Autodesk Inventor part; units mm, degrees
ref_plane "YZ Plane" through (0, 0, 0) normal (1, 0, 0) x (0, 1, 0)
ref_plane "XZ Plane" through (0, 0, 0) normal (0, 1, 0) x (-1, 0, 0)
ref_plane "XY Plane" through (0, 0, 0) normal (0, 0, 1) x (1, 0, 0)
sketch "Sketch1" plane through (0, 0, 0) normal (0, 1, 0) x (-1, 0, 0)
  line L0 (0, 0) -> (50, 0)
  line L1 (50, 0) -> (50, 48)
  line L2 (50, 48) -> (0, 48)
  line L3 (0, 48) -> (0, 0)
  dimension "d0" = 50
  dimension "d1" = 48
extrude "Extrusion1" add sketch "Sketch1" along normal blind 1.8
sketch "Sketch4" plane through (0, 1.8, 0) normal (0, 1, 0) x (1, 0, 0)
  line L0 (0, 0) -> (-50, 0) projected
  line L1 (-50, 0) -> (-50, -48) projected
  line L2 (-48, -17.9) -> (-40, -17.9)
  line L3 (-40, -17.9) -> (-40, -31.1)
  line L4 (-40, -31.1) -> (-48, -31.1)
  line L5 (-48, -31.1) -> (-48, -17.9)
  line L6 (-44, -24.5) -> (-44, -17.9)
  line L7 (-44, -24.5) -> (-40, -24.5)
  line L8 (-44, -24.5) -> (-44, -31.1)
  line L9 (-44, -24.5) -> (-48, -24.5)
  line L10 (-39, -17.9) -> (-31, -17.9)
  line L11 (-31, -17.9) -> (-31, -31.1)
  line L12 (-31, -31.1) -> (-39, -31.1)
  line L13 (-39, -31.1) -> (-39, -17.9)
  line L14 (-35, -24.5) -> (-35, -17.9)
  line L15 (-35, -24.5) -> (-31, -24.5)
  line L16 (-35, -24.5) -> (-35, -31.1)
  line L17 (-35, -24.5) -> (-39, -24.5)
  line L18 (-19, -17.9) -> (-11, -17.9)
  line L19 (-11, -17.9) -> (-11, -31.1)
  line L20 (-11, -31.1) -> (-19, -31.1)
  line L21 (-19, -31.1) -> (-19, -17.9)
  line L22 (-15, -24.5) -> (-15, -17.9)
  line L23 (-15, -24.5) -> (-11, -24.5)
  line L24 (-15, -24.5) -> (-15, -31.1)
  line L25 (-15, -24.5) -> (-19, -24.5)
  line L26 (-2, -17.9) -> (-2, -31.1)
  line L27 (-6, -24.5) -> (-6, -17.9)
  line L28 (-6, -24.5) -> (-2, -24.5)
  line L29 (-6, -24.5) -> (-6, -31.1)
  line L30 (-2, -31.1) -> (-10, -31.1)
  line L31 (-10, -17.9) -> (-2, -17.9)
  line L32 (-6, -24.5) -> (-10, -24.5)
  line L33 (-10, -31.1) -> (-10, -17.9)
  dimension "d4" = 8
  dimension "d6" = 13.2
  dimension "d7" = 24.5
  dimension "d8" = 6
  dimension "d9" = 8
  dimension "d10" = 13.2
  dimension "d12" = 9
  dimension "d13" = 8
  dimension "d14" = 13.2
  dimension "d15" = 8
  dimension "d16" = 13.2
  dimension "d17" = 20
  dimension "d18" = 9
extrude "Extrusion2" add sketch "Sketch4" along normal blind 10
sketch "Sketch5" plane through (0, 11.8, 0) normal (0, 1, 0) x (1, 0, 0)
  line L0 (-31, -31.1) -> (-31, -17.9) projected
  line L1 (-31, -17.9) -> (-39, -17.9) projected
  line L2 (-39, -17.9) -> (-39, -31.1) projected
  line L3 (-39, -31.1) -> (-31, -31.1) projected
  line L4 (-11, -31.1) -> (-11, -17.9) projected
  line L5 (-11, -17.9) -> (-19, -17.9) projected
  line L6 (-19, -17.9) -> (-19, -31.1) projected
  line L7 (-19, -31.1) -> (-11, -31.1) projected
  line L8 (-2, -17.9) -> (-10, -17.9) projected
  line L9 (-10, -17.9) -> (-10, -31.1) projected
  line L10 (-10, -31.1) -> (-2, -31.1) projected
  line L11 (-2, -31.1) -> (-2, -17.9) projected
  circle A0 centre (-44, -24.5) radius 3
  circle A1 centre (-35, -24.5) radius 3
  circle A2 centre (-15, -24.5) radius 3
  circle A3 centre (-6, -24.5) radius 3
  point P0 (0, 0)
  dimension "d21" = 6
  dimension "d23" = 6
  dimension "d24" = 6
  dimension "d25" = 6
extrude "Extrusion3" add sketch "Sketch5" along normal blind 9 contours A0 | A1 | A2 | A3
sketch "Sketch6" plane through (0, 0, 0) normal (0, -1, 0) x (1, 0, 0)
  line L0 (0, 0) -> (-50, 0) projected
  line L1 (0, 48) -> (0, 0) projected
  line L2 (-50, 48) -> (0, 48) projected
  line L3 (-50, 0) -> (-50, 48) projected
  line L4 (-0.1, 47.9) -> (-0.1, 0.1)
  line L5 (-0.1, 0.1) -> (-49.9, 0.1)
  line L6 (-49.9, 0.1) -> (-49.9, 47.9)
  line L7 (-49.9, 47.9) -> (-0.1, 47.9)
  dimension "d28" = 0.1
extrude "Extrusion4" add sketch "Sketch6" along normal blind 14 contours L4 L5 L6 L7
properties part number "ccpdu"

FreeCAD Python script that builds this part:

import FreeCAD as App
import Part
import Sketcher

V = App.Vector
Q = App.Units.Quantity


def add_polygon(sketch, points):
    """Adds a closed chain of lines whose ends are joined by coincident constraints."""
    first, n = sketch.GeometryCount, len(points)
    for a, b in zip(points, points[1:] + points[:1]):
        sketch.addGeometry(Part.LineSegment(App.Vector(*a, 0), App.Vector(*b, 0)), False)
    for i in range(n):
        sketch.addConstraint(Sketcher.Constraint("Coincident", first + i, 2, first + (i + 1) % n, 1))

doc = App.newDocument("Part")
body = doc.addObject("PartDesign::Body", "Body")

sketch1 = body.newObject("Sketcher::SketchObject", "Sketch")
sketch1.AttachmentSupport = (doc.getObject("XZ_Plane"), [""])
sketch1.MapMode = "FlatFace"
add_polygon(sketch1, [(0, 48), (0, 0), (-50, 0), (-50, 48)])
sketch1.addConstraint([
    Sketcher.Constraint("Vertical", 0),
    Sketcher.Constraint("Horizontal", 1),
    Sketcher.Constraint("Vertical", 2),
    Sketcher.Constraint("Horizontal", 3),
    Sketcher.Constraint("Coincident", 0, 2, -1, 1),
    Sketcher.Constraint("DistanceX", 1, 2, 1, 1, Q("50 mm")),
    Sketcher.Constraint("DistanceY", 0, 2, 0, 1, Q("48 mm")),
])
pad1 = body.newObject("PartDesign::Pad", "Pad")
pad1.Profile = sketch1
pad1.Length = 1.8
pad1.Reversed = True

sketch2 = body.newObject("Sketcher::SketchObject", "Sketch001")
sketch2.AttachmentSupport = (doc.getObject("XZ_Plane"), [""])
sketch2.MapMode = "FlatFace"
sketch2.AttachmentOffset = App.Placement(V(0, 0, -1.8), App.Rotation())
add_polygon(sketch2, [(-48, 18), (-48, 31), (-40, 31), (-40, 18)])
add_polygon(sketch2, [(-39, 18), (-39, 31), (-31, 31), (-31, 18)])
add_polygon(sketch2, [(-19, 18), (-19, 31), (-11, 31), (-11, 18)])
add_polygon(sketch2, [(-2, 18), (-10, 18), (-10, 31), (-2, 31)])
sketch2.addConstraint([
    Sketcher.Constraint("Vertical", 0),
    Sketcher.Constraint("Horizontal", 1),
    Sketcher.Constraint("Vertical", 2),
    Sketcher.Constraint("Horizontal", 3),
    Sketcher.Constraint("Vertical", 4),
    Sketcher.Constraint("Horizontal", 5),
    Sketcher.Constraint("Vertical", 6),
    Sketcher.Constraint("Horizontal", 7),
    Sketcher.Constraint("Vertical", 8),
    Sketcher.Constraint("Horizontal", 9),
    Sketcher.Constraint("Vertical", 10),
    Sketcher.Constraint("Horizontal", 11),
    Sketcher.Constraint("Horizontal", 12),
    Sketcher.Constraint("Vertical", 13),
    Sketcher.Constraint("Horizontal", 14),
    Sketcher.Constraint("Vertical", 15),
    Sketcher.Constraint("Horizontal", 1, 2, 4, 2),
    Sketcher.Constraint("Horizontal", 3, 2, 6, 2),
    Sketcher.Constraint("Horizontal", 5, 2, 8, 2),
    Sketcher.Constraint("Horizontal", 7, 2, 10, 2),
    Sketcher.Constraint("Horizontal", 11, 2, 12, 2),
    Sketcher.Constraint("Horizontal", 9, 2, 13, 2),
    Sketcher.Constraint("Equal", 3, 5),
    Sketcher.Constraint("Equal", 7, 9),
    Sketcher.Constraint("Equal", 11, 12),
    Sketcher.Constraint("DistanceX", 1, 1, 1, 2, Q("8 mm")),
    Sketcher.Constraint("DistanceY", 0, 1, 0, 2, Q("13.2 mm")),
    Sketcher.Constraint("DistanceX", 0, 2, 4, 2, Q("9 mm")),
    Sketcher.Constraint("DistanceX", 4, 2, 8, 2, Q("20 mm")),
    Sketcher.Constraint("DistanceX", 11, 2, 12, 2, Q("9 mm")),
    Sketcher.Constraint("DistanceX", 0, 2, -1, 1, Q("48 mm")),
    Sketcher.Constraint("DistanceY", -1, 1, 0, 2, Q("31.1 mm")),
])
pad2 = body.newObject("PartDesign::Pad", "Pad001")
pad2.Profile = sketch2
pad2.Length = 10
pad2.Reversed = True

sketch3 = body.newObject("Sketcher::SketchObject", "Sketch002")
sketch3.AttachmentSupport = (doc.getObject("XZ_Plane"), [""])
sketch3.MapMode = "FlatFace"
sketch3.AttachmentOffset = App.Placement(V(0, 0, -11.8), App.Rotation())
sketch3.addGeometry([
    Part.Circle(V(-44, 24.5, 0), V(0, 0, 1), 3),
    Part.Circle(V(-35, 24.5, 0), V(0, 0, 1), 3),
    Part.Circle(V(-15, 24.5, 0), V(0, 0, 1), 3),
    Part.Circle(V(-6, 24.5, 0), V(0, 0, 1), 3),
], False)
sketch3.addConstraint([
    Sketcher.Constraint("Equal", 0, 1),
    Sketcher.Constraint("Equal", 1, 2),
    Sketcher.Constraint("Equal", 2, 3),
    Sketcher.Constraint("Horizontal", 0, 3, 1, 3),
    Sketcher.Constraint("Horizontal", 1, 3, 2, 3),
    Sketcher.Constraint("Horizontal", 2, 3, 3, 3),
    Sketcher.Constraint("Diameter", 0, Q("6 mm")),
    Sketcher.Constraint("DistanceX", 3, 3, -1, 1, Q("6 mm")),
    Sketcher.Constraint("DistanceX", 0, 3, -1, 1, Q("44 mm")),
    Sketcher.Constraint("DistanceX", 1, 3, -1, 1, Q("35 mm")),
    Sketcher.Constraint("DistanceX", 2, 3, -1, 1, Q("15 mm")),
    Sketcher.Constraint("DistanceY", -1, 1, 0, 3, Q("24.5 mm")),
])
pad3 = body.newObject("PartDesign::Pad", "Pad002")
pad3.Profile = sketch3
pad3.Length = 9
pad3.Reversed = True

sketch4 = body.newObject("Sketcher::SketchObject", "Sketch003")
sketch4.AttachmentSupport = (doc.getObject("XZ_Plane"), [""])
sketch4.MapMode = "FlatFace"
add_polygon(sketch4, [(0, 0), (0, 48), (-50, 48), (-50, 0)])
sketch4.addConstraint([
    Sketcher.Constraint("Vertical", 0),
    Sketcher.Constraint("Horizontal", 1),
    Sketcher.Constraint("Vertical", 2),
    Sketcher.Constraint("Horizontal", 3),
    Sketcher.Constraint("DistanceX", 0, 2, -1, 1, Q("0.1 mm")),
    Sketcher.Constraint("DistanceY", -1, 1, 2, 2, Q("0.1 mm")),
    Sketcher.Constraint("DistanceX", 1, 2, 1, 1, Q("49.8 mm")),
    Sketcher.Constraint("DistanceY", 0, 1, 0, 2, Q("47.8 mm")),
])
pad4 = body.newObject("PartDesign::Pad", "Pad003")
pad4.Profile = sketch4
pad4.Length = 14

doc.recompute()
